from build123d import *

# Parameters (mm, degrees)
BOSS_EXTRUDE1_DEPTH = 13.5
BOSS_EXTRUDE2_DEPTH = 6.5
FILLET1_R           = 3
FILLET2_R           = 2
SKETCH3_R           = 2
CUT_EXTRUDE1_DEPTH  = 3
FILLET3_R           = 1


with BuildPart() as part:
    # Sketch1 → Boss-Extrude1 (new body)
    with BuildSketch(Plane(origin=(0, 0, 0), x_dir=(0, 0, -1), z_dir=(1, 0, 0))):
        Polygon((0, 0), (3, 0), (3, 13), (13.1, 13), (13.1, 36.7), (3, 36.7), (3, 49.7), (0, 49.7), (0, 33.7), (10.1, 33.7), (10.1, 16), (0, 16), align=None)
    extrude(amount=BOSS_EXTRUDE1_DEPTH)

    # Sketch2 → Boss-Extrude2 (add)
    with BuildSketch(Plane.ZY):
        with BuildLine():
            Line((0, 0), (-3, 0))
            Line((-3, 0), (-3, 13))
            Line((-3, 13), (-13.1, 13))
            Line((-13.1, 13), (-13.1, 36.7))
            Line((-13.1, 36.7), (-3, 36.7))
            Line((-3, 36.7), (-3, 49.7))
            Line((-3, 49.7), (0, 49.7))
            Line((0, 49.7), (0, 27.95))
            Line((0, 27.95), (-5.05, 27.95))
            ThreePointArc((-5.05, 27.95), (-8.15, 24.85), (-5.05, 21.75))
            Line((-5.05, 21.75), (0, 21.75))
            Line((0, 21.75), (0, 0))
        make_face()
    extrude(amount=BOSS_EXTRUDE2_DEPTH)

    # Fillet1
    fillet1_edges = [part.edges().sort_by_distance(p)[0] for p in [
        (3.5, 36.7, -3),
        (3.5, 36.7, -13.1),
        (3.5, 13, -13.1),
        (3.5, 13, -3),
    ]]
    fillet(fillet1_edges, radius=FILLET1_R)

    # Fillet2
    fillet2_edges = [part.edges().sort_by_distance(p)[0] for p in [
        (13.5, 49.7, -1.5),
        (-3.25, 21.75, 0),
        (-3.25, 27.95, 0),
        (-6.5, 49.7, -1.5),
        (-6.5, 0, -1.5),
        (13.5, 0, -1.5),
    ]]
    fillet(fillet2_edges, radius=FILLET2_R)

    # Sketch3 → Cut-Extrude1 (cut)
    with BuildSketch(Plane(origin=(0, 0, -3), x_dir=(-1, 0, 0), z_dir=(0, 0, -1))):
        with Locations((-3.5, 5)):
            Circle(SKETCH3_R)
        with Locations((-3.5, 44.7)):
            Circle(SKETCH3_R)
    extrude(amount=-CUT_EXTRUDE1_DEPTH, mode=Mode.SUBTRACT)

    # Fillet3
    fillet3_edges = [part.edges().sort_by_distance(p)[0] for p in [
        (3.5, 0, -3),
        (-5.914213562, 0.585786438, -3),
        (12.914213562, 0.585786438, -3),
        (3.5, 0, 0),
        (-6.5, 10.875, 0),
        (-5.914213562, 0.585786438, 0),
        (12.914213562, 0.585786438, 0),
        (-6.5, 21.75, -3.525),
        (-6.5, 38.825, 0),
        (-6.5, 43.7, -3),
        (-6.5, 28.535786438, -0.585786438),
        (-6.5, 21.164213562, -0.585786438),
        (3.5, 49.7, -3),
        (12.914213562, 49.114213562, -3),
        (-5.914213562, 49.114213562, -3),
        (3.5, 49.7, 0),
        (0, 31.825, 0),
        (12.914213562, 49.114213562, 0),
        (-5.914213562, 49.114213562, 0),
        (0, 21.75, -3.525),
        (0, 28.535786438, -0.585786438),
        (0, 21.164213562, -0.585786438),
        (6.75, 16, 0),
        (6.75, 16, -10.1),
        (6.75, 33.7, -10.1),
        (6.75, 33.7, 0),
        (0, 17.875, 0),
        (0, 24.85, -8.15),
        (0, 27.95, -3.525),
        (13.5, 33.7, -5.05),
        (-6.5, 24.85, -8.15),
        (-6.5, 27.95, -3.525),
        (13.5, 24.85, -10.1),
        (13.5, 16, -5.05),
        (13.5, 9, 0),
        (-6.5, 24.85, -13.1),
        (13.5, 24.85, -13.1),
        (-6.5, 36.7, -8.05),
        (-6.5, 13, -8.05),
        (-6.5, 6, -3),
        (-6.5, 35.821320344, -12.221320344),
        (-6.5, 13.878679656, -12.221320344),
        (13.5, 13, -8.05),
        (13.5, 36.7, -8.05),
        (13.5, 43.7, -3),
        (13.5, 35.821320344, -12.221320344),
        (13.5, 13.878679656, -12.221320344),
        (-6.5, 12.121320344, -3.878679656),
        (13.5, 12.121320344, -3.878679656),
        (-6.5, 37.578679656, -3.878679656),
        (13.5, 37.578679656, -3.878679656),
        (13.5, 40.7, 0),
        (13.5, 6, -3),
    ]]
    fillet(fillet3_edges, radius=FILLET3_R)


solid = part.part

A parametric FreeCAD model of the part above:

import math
import FreeCAD as App
import Part
import Sketcher
from FreeCAD import Vector


def edges_at(feature, points):
    """Names of the edges that pass closest to the given points."""
    edges = feature.Shape.Edges
    near = lambda p: min(range(len(edges)), key=lambda i: edges[i].distToShape(Part.Vertex(*p))[0])
    return sorted({f"Edge{near(p) + 1}" for p in points})


def add_polygon(sketch, points):
    """Adds a closed chain of lines whose ends are joined by coincident constraints."""
    first, n = sketch.GeometryCount, len(points)
    for a, b in zip(points, points[1:] + points[:1]):
        sketch.addGeometry(Part.LineSegment(App.Vector(*a, 0), App.Vector(*b, 0)), False)
    for i in range(n):
        sketch.addConstraint(Sketcher.Constraint("Coincident", first + i, 2, first + (i + 1) % n, 1))

doc = App.newDocument("Part")
body = doc.addObject("PartDesign::Body", "Body")

sketch1 = body.newObject("Sketcher::SketchObject", "Sketch")
sketch1.AttachmentSupport = (doc.getObject("YZ_Plane"), [""])
sketch1.MapMode = "FlatFace"
add_polygon(sketch1, [(0, 0), (0, -3), (13, -3), (13, -13.1), (36.7, -13.1), (36.7, -3), (49.7, -3), (49.7, 0), (33.7, 0), (33.7, -10.1), (16, -10.1), (16, 0)])
sketch1.addConstraint([
    Sketcher.Constraint("Vertical", 0),
    Sketcher.Constraint("Horizontal", 1),
    Sketcher.Constraint("Vertical", 2),
    Sketcher.Constraint("Horizontal", 3),
    Sketcher.Constraint("Vertical", 4),
    Sketcher.Constraint("Horizontal", 5),
    Sketcher.Constraint("Vertical", 6),
    Sketcher.Constraint("Horizontal", 7),
    Sketcher.Constraint("Vertical", 8),
    Sketcher.Constraint("Horizontal", 9),
    Sketcher.Constraint("Vertical", 10),
    Sketcher.Constraint("Horizontal", 11),
    Sketcher.Constraint("Coincident", 11, 2, -1, 1),
    Sketcher.Constraint("PointOnObject", 6, 2, -1),
    Sketcher.Constraint("Horizontal", 1, 2, 4, 2),
    Sketcher.Constraint("Equal", 1, 5),
    Sketcher.Constraint("Equal", 7, 11),
    Sketcher.Constraint("Equal", 4, 8),
    Sketcher.Constraint("DistanceX", 1, 1, 1, 2, 13.0),
    Sketcher.Constraint("DistanceX", 7, 2, 7, 1, 16.0),
    Sketcher.Constraint("DistanceY", 0, 2, 0, 1, 3.0),
    Sketcher.Constraint("DistanceX", 3, 1, 3, 2, 23.7),
    Sketcher.Constraint("DistanceY", 2, 2, 2, 1, 10.1),
])
pad1 = body.newObject("PartDesign::Pad", "Pad")
pad1.Profile = sketch1
pad1.Length = 13.5

sketch2 = body.newObject("Sketcher::SketchObject", "Sketch001")
sketch2.AttachmentSupport = (doc.getObject("YZ_Plane"), [""])
sketch2.MapMode = "FlatFace"
sketch2.addGeometry([
    Part.LineSegment(Vector(0, -3, 0), Vector(0, 0, 0)),
    Part.LineSegment(Vector(0, 0, 0), Vector(21.8, 0, 0)),
    Part.LineSegment(Vector(21.8, 0, 0), Vector(21.8, -5, 0)),
    Part.ArcOfCircle(Part.Circle(Vector(24.9, -5, 0), Vector(0, 0, 1), 3.1), math.radians(180), math.radians(360)),
    Part.LineSegment(Vector(27.9, -5, 0), Vector(27.9, 0, 0)),
    Part.LineSegment(Vector(27.9, 0, 0), Vector(49.7, 0, 0)),
    Part.LineSegment(Vector(49.7, 0, 0), Vector(49.7, -3, 0)),
    Part.LineSegment(Vector(49.7, -3, 0), Vector(36.7, -3, 0)),
    Part.LineSegment(Vector(36.7, -3, 0), Vector(36.7, -13.1, 0)),
    Part.LineSegment(Vector(36.7, -13.1, 0), Vector(13, -13.1, 0)),
    Part.LineSegment(Vector(13, -13.1, 0), Vector(13, -3, 0)),
    Part.LineSegment(Vector(13, -3, 0), Vector(0, -3, 0)),
], False)
sketch2.addConstraint([
    Sketcher.Constraint("Coincident", 0, 2, 1, 1),
    Sketcher.Constraint("Coincident", 1, 2, 2, 1),
    Sketcher.Constraint("Tangent", 2, 2, 3, 1),
    Sketcher.Constraint("Tangent", 3, 2, 4, 1),
    Sketcher.Constraint("Coincident", 4, 2, 5, 1),
    Sketcher.Constraint("Coincident", 5, 2, 6, 1),
    Sketcher.Constraint("Coincident", 6, 2, 7, 1),
    Sketcher.Constraint("Coincident", 7, 2, 8, 1),
    Sketcher.Constraint("Coincident", 8, 2, 9, 1),
    Sketcher.Constraint("Coincident", 9, 2, 10, 1),
    Sketcher.Constraint("Coincident", 10, 2, 11, 1),
    Sketcher.Constraint("Coincident", 11, 2, 0, 1),
    Sketcher.Constraint("Vertical", 0),
    Sketcher.Constraint("Horizontal", 1),
    Sketcher.Constraint("Vertical", 2),
    Sketcher.Constraint("Vertical", 4),
    Sketcher.Constraint("Horizontal", 5),
    Sketcher.Constraint("Vertical", 6),
    Sketcher.Constraint("Horizontal", 7),
    Sketcher.Constraint("Vertical", 8),
    Sketcher.Constraint("Horizontal", 9),
    Sketcher.Constraint("Vertical", 10),
    Sketcher.Constraint("Horizontal", 11),
    Sketcher.Constraint("Coincident", 0, 2, -1, 1),
    Sketcher.Constraint("PointOnObject", 4, 2, -1),
    Sketcher.Constraint("Horizontal", 7, 2, 10, 2),
    Sketcher.Constraint("Equal", 1, 5),
    Sketcher.Constraint("Equal", 7, 11),
    Sketcher.Constraint("Radius", 3, 3.1),
    Sketcher.Constraint("DistanceX", 7, 2, 7, 1, 13.0),
    Sketcher.Constraint("DistanceY", 0, 1, 0, 2, 3.0),
    Sketcher.Constraint("DistanceX", 9, 2, 9, 1, 23.7),
    Sketcher.Constraint("DistanceY", 8, 2, 8, 1, 10.1),
    Sketcher.Constraint("DistanceY", 2, 2, 2, 1, 5.05),
])
pad2 = body.newObject("PartDesign::Pad", "Pad001")
pad2.Profile = sketch2
pad2.Length = 6.5
pad2.Reversed = True
doc.recompute()

fillet = body.newObject("PartDesign::Fillet", "Fillet")
fillet.Base = (pad2, edges_at(pad2, [
    (3.5, 36.7, -3),
    (3.5, 36.7, -13.1),
    (3.5, 13, -13.1),
    (3.5, 13, -3),
]))
fillet.Radius = 3
doc.recompute()

fillet2 = body.newObject("PartDesign::Fillet", "Fillet001")
fillet2.Base = (fillet, edges_at(fillet, [
    (13.5, 49.7, -1.5),
    (-3.25, 21.75, 0),
    (-3.25, 27.95, 0),
    (-6.5, 49.7, -1.5),
    (-6.5, 0, -1.5),
    (13.5, 0, -1.5),
]))
fillet2.Radius = 2

sketch3 = body.newObject("Sketcher::SketchObject", "Sketch002")
sketch3.AttachmentSupport = (doc.getObject("XY_Plane"), [""])
sketch3.MapMode = "FlatFace"
sketch3.AttachmentOffset = App.Placement(Vector(0, 0, -3), App.Rotation())
sketch3.addGeometry([
    Part.Circle(Vector(3.5, 5, 0), Vector(0, 0, 1), 2),
    Part.Circle(Vector(3.5, 44.7, 0), Vector(0, 0, 1), 2),
], False)
sketch3.addConstraint([
    Sketcher.Constraint("Equal", 0, 1),
    Sketcher.Constraint("Vertical", 0, 3, 1, 3),
    Sketcher.Constraint("Diameter", 0, 4.0),
    Sketcher.Constraint("DistanceY", -1, 1, 0, 3, 5.0),
    Sketcher.Constraint("DistanceX", -1, 1, 0, 3, 3.5),
    Sketcher.Constraint("DistanceY", -1, 1, 1, 3, 44.7),
])
pocket1 = body.newObject("PartDesign::Pocket", "Pocket")
pocket1.Profile = sketch3
pocket1.Length = 3
pocket1.Reversed = True
doc.recompute()

fillet3 = body.newObject("PartDesign::Fillet", "Fillet002")
fillet3.Base = (pocket1, edges_at(pocket1, [
    (3.5, 0, -3),
    (-5.914, 0.586, -3),
    (12.914, 0.586, -3),
    (3.5, 0, 0),
    (-6.5, 10.875, 0),
    (-5.914, 0.586, 0),
    (12.914, 0.586, 0),
    (-6.5, 21.75, -3.525),
    (-6.5, 38.825, 0),
    (-6.5, 43.7, -3),
    (-6.5, 28.536, -0.586),
    (-6.5, 21.164, -0.586),
    (3.5, 49.7, -3),
    (12.914, 49.114, -3),
    (-5.914, 49.114, -3),
    (3.5, 49.7, 0),
    (0, 31.825, 0),
    (12.914, 49.114, 0),
    (-5.914, 49.114, 0),
    (0, 21.75, -3.525),
    (0, 28.536, -0.586),
    (0, 21.164, -0.586),
    (6.75, 16, 0),
    (6.75, 16, -10.1),
    (6.75, 33.7, -10.1),
    (6.75, 33.7, 0),
    (0, 17.875, 0),
    (0, 24.85, -8.15),
    (0, 27.95, -3.525),
    (13.5, 33.7, -5.05),
    (-6.5, 24.85, -8.15),
    (-6.5, 27.95, -3.525),
    (13.5, 24.85, -10.1),
    (13.5, 16, -5.05),
    (13.5, 9, 0),
    (-6.5, 24.85, -13.1),
    (13.5, 24.85, -13.1),
    (-6.5, 36.7, -8.05),
    (-6.5, 13, -8.05),
    (-6.5, 6, -3),
    (-6.5, 35.821, -12.221),
    (-6.5, 13.879, -12.221),
    (13.5, 13, -8.05),
    (13.5, 36.7, -8.05),
    (13.5, 43.7, -3),
    (13.5, 35.821, -12.221),
    (13.5, 13.879, -12.221),
    (-6.5, 12.121, -3.879),
    (13.5, 12.121, -3.879),
    (-6.5, 37.579, -3.879),
    (13.5, 37.579, -3.879),
    (13.5, 40.7, 0),
    (13.5, 6, -3),
]))
fillet3.Radius = 1

doc.recompute()
